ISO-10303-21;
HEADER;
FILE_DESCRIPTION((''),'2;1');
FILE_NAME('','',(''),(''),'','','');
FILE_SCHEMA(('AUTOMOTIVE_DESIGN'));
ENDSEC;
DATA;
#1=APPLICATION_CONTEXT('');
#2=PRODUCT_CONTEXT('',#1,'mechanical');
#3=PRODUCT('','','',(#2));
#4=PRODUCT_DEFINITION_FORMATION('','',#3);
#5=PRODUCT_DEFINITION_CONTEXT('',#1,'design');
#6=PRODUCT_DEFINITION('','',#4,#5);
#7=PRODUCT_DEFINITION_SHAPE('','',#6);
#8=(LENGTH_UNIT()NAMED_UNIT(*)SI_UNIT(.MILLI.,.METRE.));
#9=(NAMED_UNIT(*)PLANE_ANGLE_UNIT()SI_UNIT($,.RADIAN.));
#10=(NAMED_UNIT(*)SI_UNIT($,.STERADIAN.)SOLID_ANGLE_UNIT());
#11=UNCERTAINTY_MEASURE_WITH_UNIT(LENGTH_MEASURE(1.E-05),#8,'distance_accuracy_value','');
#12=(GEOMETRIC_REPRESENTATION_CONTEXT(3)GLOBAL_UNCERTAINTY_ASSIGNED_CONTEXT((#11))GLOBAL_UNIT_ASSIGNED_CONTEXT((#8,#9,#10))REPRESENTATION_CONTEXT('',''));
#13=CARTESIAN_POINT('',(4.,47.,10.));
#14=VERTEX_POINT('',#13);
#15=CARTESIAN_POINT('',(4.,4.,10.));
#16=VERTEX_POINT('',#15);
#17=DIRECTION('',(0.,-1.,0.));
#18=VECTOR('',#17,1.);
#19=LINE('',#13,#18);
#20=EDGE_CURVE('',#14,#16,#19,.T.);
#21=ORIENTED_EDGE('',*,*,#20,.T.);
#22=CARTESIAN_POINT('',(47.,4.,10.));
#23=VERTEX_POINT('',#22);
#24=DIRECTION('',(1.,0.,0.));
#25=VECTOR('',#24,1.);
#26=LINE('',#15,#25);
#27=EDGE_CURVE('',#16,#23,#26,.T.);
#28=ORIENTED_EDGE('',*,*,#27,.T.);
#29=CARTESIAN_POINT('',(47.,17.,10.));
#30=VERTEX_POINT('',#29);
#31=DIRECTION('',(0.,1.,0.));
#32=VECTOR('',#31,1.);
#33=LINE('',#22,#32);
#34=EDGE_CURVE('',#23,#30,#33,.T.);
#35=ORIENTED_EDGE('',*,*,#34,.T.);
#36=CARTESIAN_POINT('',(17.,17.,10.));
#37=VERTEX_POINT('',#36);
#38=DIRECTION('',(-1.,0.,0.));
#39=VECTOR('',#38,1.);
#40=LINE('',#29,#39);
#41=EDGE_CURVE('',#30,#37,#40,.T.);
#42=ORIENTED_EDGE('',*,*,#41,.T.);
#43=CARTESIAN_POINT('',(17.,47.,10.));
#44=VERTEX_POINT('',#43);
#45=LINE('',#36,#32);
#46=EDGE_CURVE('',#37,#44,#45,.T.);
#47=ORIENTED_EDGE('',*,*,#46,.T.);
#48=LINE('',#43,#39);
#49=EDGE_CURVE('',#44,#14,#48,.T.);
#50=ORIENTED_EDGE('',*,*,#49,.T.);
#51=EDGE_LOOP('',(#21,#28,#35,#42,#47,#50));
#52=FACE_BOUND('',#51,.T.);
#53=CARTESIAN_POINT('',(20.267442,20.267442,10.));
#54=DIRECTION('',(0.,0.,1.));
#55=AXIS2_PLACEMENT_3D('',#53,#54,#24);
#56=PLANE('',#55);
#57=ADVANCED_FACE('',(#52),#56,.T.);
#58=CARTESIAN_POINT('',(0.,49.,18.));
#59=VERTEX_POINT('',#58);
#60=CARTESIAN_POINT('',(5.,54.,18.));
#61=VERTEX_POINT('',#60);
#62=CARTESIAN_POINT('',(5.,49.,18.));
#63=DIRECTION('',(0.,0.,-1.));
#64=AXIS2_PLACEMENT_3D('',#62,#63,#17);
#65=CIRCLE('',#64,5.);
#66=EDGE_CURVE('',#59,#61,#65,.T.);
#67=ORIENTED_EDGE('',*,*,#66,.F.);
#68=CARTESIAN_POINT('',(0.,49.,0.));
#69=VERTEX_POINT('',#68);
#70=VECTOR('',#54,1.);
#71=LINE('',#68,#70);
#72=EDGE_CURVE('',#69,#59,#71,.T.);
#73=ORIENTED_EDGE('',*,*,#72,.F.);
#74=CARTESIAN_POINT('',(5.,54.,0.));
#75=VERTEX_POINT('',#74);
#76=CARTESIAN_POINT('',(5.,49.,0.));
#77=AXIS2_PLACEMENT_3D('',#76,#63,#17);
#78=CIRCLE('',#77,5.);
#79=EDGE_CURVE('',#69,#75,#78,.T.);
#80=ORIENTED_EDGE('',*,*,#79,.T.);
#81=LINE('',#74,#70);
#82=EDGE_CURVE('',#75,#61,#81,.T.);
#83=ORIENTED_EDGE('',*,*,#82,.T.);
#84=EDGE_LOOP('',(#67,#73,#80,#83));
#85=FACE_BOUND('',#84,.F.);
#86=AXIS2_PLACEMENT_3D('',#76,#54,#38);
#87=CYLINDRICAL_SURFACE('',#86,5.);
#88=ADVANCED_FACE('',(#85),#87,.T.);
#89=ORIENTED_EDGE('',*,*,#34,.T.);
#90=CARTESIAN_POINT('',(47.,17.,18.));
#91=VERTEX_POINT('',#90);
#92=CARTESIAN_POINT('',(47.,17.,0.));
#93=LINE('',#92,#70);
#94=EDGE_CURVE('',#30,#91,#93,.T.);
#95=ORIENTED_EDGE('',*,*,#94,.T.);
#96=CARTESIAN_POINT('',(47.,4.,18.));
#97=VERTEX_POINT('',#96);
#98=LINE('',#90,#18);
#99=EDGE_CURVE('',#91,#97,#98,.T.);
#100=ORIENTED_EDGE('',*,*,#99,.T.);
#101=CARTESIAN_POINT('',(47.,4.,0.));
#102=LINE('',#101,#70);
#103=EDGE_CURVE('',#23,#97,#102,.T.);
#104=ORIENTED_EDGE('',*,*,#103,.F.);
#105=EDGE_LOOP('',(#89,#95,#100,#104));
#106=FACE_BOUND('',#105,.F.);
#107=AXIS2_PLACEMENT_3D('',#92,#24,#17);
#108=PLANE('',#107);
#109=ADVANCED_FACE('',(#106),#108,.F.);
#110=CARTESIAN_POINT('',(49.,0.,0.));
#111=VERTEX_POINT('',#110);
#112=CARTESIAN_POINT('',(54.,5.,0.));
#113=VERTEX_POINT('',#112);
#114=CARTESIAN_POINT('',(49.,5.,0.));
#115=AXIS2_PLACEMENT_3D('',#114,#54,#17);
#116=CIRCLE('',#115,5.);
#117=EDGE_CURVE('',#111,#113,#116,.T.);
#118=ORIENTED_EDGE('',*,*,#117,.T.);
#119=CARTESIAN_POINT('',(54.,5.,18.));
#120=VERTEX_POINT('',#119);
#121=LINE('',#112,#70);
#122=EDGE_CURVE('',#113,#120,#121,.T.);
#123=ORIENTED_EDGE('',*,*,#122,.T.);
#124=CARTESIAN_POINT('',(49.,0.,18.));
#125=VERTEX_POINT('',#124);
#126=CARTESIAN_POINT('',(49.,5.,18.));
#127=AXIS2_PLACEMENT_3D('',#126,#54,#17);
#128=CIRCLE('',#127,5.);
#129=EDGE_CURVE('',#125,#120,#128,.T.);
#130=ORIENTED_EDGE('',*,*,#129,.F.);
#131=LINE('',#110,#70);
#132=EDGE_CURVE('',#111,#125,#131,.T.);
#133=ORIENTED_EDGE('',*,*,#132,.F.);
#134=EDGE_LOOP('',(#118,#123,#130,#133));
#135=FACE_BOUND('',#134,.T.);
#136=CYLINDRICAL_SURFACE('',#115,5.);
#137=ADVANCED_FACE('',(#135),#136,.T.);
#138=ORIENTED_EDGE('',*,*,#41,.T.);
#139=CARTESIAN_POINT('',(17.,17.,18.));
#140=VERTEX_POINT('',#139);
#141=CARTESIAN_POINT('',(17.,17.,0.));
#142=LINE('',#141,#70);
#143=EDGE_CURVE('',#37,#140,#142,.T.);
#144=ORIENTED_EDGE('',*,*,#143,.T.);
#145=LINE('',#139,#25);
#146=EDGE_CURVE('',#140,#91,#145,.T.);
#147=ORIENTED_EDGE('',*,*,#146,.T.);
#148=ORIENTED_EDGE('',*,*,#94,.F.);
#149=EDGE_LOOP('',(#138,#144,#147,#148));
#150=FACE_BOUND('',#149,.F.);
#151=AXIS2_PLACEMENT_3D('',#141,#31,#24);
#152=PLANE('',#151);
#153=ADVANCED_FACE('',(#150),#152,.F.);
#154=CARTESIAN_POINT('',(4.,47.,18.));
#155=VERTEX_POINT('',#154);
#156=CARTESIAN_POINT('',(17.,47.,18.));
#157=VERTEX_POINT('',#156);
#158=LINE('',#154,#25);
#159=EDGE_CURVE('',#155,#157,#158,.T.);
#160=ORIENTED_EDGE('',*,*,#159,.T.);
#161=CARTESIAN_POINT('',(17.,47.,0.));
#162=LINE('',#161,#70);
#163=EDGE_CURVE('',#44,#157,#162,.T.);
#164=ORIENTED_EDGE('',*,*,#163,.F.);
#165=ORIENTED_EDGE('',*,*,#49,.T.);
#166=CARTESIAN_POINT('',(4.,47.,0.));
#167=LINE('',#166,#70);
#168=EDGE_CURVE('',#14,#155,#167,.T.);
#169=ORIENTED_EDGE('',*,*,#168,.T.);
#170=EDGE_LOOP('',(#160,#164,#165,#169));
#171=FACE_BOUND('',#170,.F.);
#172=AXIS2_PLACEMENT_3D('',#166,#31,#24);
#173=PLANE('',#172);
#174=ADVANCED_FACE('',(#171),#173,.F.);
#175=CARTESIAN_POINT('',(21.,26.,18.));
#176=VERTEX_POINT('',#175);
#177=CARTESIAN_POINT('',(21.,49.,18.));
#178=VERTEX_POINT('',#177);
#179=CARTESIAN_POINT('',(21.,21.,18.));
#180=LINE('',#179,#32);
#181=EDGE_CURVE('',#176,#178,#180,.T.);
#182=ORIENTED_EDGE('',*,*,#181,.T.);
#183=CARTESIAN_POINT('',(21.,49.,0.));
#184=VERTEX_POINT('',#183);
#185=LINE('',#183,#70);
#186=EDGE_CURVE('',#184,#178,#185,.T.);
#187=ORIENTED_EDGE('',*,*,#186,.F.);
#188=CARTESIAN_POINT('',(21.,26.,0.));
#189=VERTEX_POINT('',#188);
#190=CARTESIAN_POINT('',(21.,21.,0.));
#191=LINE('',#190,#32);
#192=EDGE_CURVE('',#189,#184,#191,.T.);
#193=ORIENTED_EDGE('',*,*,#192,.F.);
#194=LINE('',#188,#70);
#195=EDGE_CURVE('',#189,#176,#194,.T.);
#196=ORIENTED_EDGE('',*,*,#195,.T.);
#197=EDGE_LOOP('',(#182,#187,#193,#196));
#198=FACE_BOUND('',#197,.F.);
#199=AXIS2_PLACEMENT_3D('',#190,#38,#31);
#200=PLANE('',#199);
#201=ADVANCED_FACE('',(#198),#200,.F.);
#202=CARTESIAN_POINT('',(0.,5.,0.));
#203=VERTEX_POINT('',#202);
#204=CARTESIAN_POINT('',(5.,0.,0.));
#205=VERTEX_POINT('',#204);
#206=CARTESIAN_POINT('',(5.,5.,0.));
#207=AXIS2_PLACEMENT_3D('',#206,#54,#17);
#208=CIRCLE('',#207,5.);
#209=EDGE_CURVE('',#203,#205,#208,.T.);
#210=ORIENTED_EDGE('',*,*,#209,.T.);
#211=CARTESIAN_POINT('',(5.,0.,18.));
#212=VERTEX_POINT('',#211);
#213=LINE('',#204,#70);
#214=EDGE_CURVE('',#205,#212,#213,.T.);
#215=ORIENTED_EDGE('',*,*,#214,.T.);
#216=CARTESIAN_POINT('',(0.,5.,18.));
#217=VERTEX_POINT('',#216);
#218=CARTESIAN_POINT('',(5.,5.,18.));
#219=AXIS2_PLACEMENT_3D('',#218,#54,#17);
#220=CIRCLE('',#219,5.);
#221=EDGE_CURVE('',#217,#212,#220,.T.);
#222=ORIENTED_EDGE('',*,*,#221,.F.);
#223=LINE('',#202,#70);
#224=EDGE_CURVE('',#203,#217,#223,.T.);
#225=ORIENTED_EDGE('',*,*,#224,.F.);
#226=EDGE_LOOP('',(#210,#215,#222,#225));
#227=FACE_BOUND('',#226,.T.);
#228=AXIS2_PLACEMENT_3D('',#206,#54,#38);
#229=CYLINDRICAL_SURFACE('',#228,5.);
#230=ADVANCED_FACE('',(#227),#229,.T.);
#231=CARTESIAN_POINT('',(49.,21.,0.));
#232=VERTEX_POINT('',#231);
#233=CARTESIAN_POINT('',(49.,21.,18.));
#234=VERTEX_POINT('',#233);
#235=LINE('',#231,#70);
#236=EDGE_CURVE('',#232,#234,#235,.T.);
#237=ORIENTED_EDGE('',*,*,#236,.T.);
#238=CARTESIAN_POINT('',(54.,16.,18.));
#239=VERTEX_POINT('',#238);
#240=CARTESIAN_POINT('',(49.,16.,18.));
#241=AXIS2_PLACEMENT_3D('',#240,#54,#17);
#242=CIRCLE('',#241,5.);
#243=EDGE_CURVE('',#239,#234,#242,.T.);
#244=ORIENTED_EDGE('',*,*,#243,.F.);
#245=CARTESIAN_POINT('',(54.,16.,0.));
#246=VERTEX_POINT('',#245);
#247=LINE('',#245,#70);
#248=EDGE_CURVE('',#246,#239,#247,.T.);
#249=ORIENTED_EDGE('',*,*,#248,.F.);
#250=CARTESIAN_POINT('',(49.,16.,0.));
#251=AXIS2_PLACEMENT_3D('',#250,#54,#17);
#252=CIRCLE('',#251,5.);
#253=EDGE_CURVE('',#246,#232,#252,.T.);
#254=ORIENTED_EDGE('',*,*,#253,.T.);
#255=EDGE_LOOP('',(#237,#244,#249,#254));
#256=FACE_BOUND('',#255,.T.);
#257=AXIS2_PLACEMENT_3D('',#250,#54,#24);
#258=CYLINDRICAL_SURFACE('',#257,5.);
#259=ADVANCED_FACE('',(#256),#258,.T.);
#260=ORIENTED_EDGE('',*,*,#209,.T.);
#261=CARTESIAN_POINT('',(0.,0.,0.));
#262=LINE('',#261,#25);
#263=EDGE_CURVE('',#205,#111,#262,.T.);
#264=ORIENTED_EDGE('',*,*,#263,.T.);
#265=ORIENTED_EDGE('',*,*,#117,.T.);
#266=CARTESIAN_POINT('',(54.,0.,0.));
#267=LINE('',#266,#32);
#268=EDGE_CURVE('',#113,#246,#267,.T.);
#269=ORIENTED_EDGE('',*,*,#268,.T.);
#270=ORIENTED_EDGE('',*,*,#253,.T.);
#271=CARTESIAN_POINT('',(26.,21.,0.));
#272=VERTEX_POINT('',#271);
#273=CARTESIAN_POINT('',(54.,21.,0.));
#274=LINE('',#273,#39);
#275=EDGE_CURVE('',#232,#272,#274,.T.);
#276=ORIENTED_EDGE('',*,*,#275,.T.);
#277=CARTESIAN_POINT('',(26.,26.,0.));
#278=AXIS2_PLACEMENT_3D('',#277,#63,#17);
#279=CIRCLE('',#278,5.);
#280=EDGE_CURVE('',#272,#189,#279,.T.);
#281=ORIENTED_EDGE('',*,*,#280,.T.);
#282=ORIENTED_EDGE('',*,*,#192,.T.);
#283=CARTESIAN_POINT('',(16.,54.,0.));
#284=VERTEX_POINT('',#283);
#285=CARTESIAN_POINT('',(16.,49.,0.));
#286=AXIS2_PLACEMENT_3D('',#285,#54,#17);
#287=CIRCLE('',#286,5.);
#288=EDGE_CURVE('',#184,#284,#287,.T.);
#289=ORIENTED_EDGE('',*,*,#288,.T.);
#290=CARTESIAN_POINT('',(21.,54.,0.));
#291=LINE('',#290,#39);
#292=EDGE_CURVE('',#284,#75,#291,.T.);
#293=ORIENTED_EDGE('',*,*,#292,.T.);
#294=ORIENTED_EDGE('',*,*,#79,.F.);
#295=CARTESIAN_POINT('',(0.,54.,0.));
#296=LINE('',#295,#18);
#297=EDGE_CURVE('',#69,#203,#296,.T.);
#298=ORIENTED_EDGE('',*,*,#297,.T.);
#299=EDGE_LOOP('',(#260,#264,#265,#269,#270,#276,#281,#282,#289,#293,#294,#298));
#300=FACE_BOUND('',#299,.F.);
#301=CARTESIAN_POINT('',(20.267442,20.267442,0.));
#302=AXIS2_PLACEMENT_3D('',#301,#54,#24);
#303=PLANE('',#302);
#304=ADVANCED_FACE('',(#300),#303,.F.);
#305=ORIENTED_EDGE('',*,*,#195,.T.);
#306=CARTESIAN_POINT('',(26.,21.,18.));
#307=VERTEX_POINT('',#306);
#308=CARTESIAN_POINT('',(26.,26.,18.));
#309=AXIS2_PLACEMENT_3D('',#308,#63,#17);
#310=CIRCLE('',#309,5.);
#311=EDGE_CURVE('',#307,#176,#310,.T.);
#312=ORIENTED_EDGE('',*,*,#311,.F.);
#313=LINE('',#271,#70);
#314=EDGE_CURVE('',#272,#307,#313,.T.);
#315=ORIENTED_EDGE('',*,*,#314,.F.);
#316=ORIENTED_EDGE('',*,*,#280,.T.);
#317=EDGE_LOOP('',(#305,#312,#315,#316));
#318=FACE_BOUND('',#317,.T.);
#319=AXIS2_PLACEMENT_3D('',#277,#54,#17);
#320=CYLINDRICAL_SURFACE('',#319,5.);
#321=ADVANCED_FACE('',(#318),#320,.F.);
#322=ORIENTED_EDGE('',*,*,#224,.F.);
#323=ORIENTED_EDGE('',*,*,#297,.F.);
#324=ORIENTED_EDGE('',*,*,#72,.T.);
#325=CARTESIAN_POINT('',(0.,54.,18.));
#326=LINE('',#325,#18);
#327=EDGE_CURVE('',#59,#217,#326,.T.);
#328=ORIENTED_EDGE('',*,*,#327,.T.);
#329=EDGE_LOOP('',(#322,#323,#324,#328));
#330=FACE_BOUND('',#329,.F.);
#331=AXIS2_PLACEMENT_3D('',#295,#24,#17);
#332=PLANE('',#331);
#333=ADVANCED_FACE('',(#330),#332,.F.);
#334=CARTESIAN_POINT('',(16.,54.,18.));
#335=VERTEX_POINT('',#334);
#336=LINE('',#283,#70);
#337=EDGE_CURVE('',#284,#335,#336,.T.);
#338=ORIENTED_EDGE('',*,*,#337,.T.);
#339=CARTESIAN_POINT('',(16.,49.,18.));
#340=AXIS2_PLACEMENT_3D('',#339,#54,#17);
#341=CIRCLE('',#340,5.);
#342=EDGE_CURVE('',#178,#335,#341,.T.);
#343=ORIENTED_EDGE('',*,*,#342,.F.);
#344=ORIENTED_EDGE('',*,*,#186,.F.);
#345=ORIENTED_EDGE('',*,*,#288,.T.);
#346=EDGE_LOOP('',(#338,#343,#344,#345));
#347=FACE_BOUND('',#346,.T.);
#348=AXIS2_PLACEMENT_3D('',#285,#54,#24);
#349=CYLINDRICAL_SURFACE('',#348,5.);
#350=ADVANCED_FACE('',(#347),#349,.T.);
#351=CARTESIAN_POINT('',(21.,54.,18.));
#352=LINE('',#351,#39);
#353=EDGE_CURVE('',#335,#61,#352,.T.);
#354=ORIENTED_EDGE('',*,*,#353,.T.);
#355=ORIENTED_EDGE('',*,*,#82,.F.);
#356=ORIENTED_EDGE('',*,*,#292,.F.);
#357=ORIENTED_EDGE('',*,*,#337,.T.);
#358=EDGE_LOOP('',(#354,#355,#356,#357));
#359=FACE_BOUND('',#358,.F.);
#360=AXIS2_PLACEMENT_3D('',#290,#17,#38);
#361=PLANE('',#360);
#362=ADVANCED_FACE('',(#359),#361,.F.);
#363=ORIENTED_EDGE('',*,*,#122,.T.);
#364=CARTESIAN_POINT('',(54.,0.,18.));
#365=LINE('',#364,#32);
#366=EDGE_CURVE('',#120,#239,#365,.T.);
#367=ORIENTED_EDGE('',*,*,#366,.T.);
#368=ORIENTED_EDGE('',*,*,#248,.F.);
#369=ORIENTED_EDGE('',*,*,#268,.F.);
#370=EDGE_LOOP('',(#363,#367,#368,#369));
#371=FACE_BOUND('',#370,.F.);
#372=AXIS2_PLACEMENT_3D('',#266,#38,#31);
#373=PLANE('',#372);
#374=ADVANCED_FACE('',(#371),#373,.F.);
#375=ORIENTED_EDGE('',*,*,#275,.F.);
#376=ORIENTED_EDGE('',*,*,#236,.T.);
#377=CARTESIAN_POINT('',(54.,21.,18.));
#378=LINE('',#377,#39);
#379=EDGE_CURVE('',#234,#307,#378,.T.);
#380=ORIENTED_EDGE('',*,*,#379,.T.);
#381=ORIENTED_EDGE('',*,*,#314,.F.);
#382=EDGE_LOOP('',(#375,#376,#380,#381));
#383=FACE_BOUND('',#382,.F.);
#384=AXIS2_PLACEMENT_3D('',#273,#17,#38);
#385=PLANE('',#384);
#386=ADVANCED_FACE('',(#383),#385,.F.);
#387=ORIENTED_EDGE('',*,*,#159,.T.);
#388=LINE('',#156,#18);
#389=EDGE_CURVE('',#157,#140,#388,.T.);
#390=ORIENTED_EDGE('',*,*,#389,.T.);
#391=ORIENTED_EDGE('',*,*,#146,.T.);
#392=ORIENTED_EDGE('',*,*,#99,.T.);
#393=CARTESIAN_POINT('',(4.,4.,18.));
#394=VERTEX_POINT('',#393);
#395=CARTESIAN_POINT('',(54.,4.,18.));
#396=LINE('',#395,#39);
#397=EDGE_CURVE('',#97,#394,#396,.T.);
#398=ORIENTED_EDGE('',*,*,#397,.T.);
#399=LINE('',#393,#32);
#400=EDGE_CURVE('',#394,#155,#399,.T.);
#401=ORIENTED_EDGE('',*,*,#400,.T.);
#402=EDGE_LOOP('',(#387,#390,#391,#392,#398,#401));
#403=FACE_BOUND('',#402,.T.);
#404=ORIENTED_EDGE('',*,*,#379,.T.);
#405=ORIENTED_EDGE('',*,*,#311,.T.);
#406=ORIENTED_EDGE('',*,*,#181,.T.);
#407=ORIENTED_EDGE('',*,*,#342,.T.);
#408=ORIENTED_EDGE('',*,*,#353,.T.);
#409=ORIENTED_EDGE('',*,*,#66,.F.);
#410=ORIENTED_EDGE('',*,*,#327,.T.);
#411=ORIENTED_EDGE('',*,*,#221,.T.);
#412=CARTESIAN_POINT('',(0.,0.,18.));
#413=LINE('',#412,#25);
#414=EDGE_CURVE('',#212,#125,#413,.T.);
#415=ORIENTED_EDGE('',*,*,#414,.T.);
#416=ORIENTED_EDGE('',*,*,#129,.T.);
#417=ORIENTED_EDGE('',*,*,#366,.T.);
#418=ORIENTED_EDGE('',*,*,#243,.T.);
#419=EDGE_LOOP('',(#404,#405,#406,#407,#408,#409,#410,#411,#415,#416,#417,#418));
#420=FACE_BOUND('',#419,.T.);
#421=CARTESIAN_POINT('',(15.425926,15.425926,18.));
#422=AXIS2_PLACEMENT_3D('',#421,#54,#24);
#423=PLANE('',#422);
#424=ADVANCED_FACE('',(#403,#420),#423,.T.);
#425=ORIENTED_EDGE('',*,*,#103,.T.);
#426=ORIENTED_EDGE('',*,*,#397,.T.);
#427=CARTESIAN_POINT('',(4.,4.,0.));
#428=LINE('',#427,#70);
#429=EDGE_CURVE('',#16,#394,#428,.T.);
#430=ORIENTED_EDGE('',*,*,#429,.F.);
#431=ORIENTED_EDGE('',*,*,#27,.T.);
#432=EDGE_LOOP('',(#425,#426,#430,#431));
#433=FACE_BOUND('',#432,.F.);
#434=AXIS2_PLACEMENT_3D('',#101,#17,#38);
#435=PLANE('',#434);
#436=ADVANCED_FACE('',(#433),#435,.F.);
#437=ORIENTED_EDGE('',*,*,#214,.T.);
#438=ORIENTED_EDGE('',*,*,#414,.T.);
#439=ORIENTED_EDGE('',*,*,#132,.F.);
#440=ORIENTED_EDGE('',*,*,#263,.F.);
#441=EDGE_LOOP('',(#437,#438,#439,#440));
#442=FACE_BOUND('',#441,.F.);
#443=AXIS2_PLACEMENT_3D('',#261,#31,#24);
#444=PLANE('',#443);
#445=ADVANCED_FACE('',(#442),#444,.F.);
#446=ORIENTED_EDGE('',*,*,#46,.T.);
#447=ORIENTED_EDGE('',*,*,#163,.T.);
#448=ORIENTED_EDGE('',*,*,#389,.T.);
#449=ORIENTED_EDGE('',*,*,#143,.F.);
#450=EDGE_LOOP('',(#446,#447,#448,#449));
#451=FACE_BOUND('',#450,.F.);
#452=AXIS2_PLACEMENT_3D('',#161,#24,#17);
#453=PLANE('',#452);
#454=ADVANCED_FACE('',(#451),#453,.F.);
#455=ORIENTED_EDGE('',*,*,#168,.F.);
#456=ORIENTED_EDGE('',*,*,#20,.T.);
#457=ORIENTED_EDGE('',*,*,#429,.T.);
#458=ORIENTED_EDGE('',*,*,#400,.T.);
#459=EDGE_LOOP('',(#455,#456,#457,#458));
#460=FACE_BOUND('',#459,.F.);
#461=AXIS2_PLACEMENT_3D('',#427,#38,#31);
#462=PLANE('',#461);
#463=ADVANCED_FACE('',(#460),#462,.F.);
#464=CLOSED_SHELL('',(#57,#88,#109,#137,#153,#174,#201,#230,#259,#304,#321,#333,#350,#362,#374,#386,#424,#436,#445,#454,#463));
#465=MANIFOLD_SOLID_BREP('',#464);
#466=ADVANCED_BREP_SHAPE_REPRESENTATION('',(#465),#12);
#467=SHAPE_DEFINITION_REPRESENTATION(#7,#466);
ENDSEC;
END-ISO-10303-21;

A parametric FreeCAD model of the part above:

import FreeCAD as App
import Part
import Sketcher
from FreeCAD import Vector


def edges_at(feature, points):
    """Names of the edges that pass closest to the given points."""
    edges = feature.Shape.Edges
    near = lambda p: min(range(len(edges)), key=lambda i: edges[i].distToShape(Part.Vertex(*p))[0])
    return sorted({f"Edge{near(p) + 1}" for p in points})

doc = App.newDocument("Part")
body = doc.addObject("PartDesign::Body", "Body")

# Sketch on XY plane
sketch1 = body.newObject("Sketcher::SketchObject", "Sketch")
sketch1.AttachmentSupport = (doc.getObject("XY_Plane"), [""])
sketch1.MapMode = "FlatFace"
sketch1.addGeometry([
    Part.LineSegment(Vector(0, 54, 0), Vector(0, 0, 0)),  # 0
    Part.LineSegment(Vector(0, 0, 0), Vector(54, 0, 0)),  # 1
    Part.LineSegment(Vector(54, 0, 0), Vector(54, 21, 0)),  # 2
    Part.LineSegment(Vector(54, 21, 0), Vector(21, 21, 0)),  # 3
    Part.LineSegment(Vector(21, 21, 0), Vector(21, 54, 0)),  # 4
    Part.LineSegment(Vector(21, 54, 0), Vector(0, 54, 0)),  # 5
    Part.LineSegment(Vector(47, 4, 0), Vector(4, 4, 0)),  # 6
    Part.LineSegment(Vector(4, 4, 0), Vector(4, 47, 0)),  # 7
    Part.LineSegment(Vector(4, 47, 0), Vector(17, 47, 0)),  # 8
    Part.LineSegment(Vector(17, 47, 0), Vector(17, 17, 0)),  # 9
    Part.LineSegment(Vector(17, 17, 0), Vector(47, 17, 0)),  # 10
    Part.LineSegment(Vector(47, 17, 0), Vector(47, 4, 0)),  # 11
], False)
sketch1.addConstraint([
    Sketcher.Constraint("Coincident", 0, 2, 1, 1),
    Sketcher.Constraint("Coincident", 1, 2, 2, 1),
    Sketcher.Constraint("Coincident", 2, 2, 3, 1),
    Sketcher.Constraint("Coincident", 3, 2, 4, 1),
    Sketcher.Constraint("Coincident", 4, 2, 5, 1),
    Sketcher.Constraint("Coincident", 5, 2, 0, 1),
    Sketcher.Constraint("Coincident", 6, 2, 7, 1),
    Sketcher.Constraint("Coincident", 7, 2, 8, 1),
    Sketcher.Constraint("Coincident", 8, 2, 9, 1),
    Sketcher.Constraint("Coincident", 9, 2, 10, 1),
    Sketcher.Constraint("Coincident", 10, 2, 11, 1),
    Sketcher.Constraint("Coincident", 11, 2, 6, 1),
    Sketcher.Constraint("Vertical", 0),
    Sketcher.Constraint("Horizontal", 1),
    Sketcher.Constraint("Vertical", 2),
    Sketcher.Constraint("Horizontal", 3),
    Sketcher.Constraint("Vertical", 4),
    Sketcher.Constraint("Horizontal", 5),
    Sketcher.Constraint("Horizontal", 6),
    Sketcher.Constraint("Vertical", 7),
    Sketcher.Constraint("Horizontal", 8),
    Sketcher.Constraint("Vertical", 9),
    Sketcher.Constraint("Horizontal", 10),
    Sketcher.Constraint("Vertical", 11),
    Sketcher.Constraint("Coincident", 0, 2, -1, 1),
    Sketcher.Constraint("Equal", 1, 0),
    Sketcher.Constraint("Equal", 5, 2),
    Sketcher.Constraint("Equal", 6, 7),
    Sketcher.Constraint("Equal", 10, 9),
    Sketcher.Constraint("DistanceX", 1, 1, 1, 2, 54.0),
    Sketcher.Constraint("DistanceX", 3, 2, 3, 1, 33.0),
    Sketcher.Constraint("DistanceX", 6, 2, 6, 1, 43.0),
    Sketcher.Constraint("DistanceX", 8, 1, 8, 2, 13.0),
    Sketcher.Constraint("DistanceX", -1, 1, 6, 2, 4.0),
    Sketcher.Constraint("DistanceY", -1, 1, 6, 2, 4.0),
])
pad1 = body.newObject("PartDesign::Pad", "Pad")
pad1.Profile = sketch1
pad1.Length = 18

# Sketch on XY plane
sketch2 = body.newObject("Sketcher::SketchObject", "Sketch001")
sketch2.AttachmentSupport = (doc.getObject("XY_Plane"), [""])
sketch2.MapMode = "FlatFace"
sketch2.addGeometry([
    Part.LineSegment(Vector(4, 4, 0), Vector(47, 4, 0)),  # 0
    Part.LineSegment(Vector(47, 4, 0), Vector(47, 17, 0)),  # 1
    Part.LineSegment(Vector(47, 17, 0), Vector(17, 17, 0)),  # 2
    Part.LineSegment(Vector(17, 17, 0), Vector(17, 47, 0)),  # 3
    Part.LineSegment(Vector(17, 47, 0), Vector(4, 47, 0)),  # 4
    Part.LineSegment(Vector(4, 47, 0), Vector(4, 4, 0)),  # 5
], False)
sketch2.addConstraint([
    Sketcher.Constraint("Coincident", 0, 2, 1, 1),
    Sketcher.Constraint("Coincident", 1, 2, 2, 1),
    Sketcher.Constraint("Coincident", 2, 2, 3, 1),
    Sketcher.Constraint("Coincident", 3, 2, 4, 1),
    Sketcher.Constraint("Coincident", 4, 2, 5, 1),
    Sketcher.Constraint("Coincident", 5, 2, 0, 1),
    Sketcher.Constraint("Horizontal", 0),
    Sketcher.Constraint("Vertical", 1),
    Sketcher.Constraint("Horizontal", 2),
    Sketcher.Constraint("Vertical", 3),
    Sketcher.Constraint("Horizontal", 4),
    Sketcher.Constraint("Vertical", 5),
    Sketcher.Constraint("Equal", 4, 1),
    Sketcher.Constraint("Equal", 2, 3),
    Sketcher.Constraint("DistanceX", 0, 1, 0, 2, 43.0),
    Sketcher.Constraint("DistanceX", 2, 2, 2, 1, 30.0),
    Sketcher.Constraint("DistanceX", -1, 1, 0, 2, 47.0),
    Sketcher.Constraint("DistanceY", -1, 1, 0, 2, 4.0),
])
pad2 = body.newObject("PartDesign::Pad", "Pad001")
pad2.Profile = sketch2
pad2.Length = 10
doc.recompute()

fillet = body.newObject("PartDesign::Fillet", "Fillet")
fillet.Base = (pad2, edges_at(pad2, [
    (0, 0, 9),
    (0, 54, 9),
    (54, 0, 9),
    (54, 21, 9),
    (21, 54, 9),
    (21, 21, 9),
]))
fillet.Radius = 5

doc.recompute()
